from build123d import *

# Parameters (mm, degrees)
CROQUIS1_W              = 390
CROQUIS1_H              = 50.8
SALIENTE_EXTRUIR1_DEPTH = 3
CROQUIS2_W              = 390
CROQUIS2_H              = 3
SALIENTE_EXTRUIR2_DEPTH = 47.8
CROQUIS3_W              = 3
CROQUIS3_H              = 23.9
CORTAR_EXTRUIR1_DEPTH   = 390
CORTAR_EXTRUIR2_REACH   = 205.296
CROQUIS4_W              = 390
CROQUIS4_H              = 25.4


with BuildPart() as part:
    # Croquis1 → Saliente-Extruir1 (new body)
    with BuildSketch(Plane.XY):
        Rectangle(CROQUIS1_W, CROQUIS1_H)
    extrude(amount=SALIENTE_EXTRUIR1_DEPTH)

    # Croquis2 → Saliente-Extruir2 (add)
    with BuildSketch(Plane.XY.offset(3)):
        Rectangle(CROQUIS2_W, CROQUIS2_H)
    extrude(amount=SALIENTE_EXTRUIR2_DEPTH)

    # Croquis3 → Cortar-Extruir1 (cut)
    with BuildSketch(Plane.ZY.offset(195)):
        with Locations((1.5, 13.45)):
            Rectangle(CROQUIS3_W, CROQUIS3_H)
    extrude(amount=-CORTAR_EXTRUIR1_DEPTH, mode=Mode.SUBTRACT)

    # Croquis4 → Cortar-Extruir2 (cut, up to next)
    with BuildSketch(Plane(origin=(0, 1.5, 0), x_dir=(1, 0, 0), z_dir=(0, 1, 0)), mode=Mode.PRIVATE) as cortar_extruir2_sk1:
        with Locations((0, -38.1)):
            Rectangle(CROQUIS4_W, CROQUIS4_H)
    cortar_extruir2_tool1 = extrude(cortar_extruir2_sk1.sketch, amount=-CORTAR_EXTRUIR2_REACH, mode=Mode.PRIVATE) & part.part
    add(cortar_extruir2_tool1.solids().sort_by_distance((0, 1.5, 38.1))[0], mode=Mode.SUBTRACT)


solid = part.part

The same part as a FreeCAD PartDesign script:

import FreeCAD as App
import Part
import Sketcher
Q = App.Units.Quantity

doc = App.newDocument("Part")
body = doc.addObject("PartDesign::Body", "Body")

sketch1 = doc.addObject("Sketcher::SketchObject", "Sketch")
body.addObject(sketch1)
sketch1.AttachmentSupport = (doc.XY_Plane, [""])
sketch1.MapMode = "FlatFace"
sketch1.addGeometry(Part.LineSegment(App.Vector(-195, 25, 0), App.Vector(-195, -25, 0)), False)
sketch1.addGeometry(Part.LineSegment(App.Vector(-195, -25, 0), App.Vector(195, -25, 0)), False)
sketch1.addGeometry(Part.LineSegment(App.Vector(195, -25, 0), App.Vector(195, 25, 0)), False)
sketch1.addGeometry(Part.LineSegment(App.Vector(195, 25, 0), App.Vector(-195, 25, 0)), False)
sketch1.addConstraint(Sketcher.Constraint("Coincident", 0, 2, 1, 1))
sketch1.addConstraint(Sketcher.Constraint("Coincident", 1, 2, 2, 1))
sketch1.addConstraint(Sketcher.Constraint("Coincident", 2, 2, 3, 1))
sketch1.addConstraint(Sketcher.Constraint("Coincident", 3, 2, 0, 1))
sketch1.addConstraint(Sketcher.Constraint("Vertical", 0))
sketch1.addConstraint(Sketcher.Constraint("Horizontal", 1))
sketch1.addConstraint(Sketcher.Constraint("Vertical", 2))
sketch1.addConstraint(Sketcher.Constraint("Horizontal", 3))
sketch1.addConstraint(Sketcher.Constraint("Symmetric", 0, 2, 2, 2, -1, 1))
sketch1.addConstraint(Sketcher.Constraint("DistanceX", 1, 1, 1, 2, Q("390 mm")))
sketch1.addConstraint(Sketcher.Constraint("DistanceY", 0, 2, 0, 1, Q("50.8 mm")))
pad1 = doc.addObject("PartDesign::Pad", "Pad")
body.addObject(pad1)
pad1.Profile = sketch1
pad1.Length = 3

sketch2 = doc.addObject("Sketcher::SketchObject", "Sketch001")
body.addObject(sketch2)
sketch2.AttachmentSupport = (doc.XY_Plane, [""])
sketch2.MapMode = "FlatFace"
sketch2.AttachmentOffset = App.Placement(App.Vector(0, 0, 3), App.Rotation())
sketch2.addGeometry(Part.LineSegment(App.Vector(-195, 1.5, 0), App.Vector(-195, -1.5, 0)), False)
sketch2.addGeometry(Part.LineSegment(App.Vector(-195, -1.5, 0), App.Vector(195, -1.5, 0)), False)
sketch2.addGeometry(Part.LineSegment(App.Vector(195, -1.5, 0), App.Vector(195, 1.5, 0)), False)
sketch2.addGeometry(Part.LineSegment(App.Vector(195, 1.5, 0), App.Vector(-195, 1.5, 0)), False)
sketch2.addConstraint(Sketcher.Constraint("Coincident", 0, 2, 1, 1))
sketch2.addConstraint(Sketcher.Constraint("Coincident", 1, 2, 2, 1))
sketch2.addConstraint(Sketcher.Constraint("Coincident", 2, 2, 3, 1))
sketch2.addConstraint(Sketcher.Constraint("Coincident", 3, 2, 0, 1))
sketch2.addConstraint(Sketcher.Constraint("Vertical", 0))
sketch2.addConstraint(Sketcher.Constraint("Horizontal", 1))
sketch2.addConstraint(Sketcher.Constraint("Vertical", 2))
sketch2.addConstraint(Sketcher.Constraint("Horizontal", 3))
sketch2.addConstraint(Sketcher.Constraint("Symmetric", 0, 2, 2, 2, -1, 1))
sketch2.addConstraint(Sketcher.Constraint("DistanceX", 1, 1, 1, 2, Q("390 mm")))
sketch2.addConstraint(Sketcher.Constraint("DistanceY", 0, 2, 0, 1, Q("3 mm")))
pad2 = doc.addObject("PartDesign::Pad", "Pad001")
body.addObject(pad2)
pad2.Profile = sketch2
pad2.Length = 47.8

sketch3 = doc.addObject("Sketcher::SketchObject", "Sketch002")
body.addObject(sketch3)
sketch3.AttachmentSupport = (doc.YZ_Plane, [""])
sketch3.MapMode = "FlatFace"
sketch3.AttachmentOffset = App.Placement(App.Vector(0, 0, -195), App.Rotation())
sketch3.addGeometry(Part.LineSegment(App.Vector(25.4, 0, 0), App.Vector(1.5, 0, 0)), False)
sketch3.addGeometry(Part.LineSegment(App.Vector(1.5, 0, 0), App.Vector(1.5, 3, 0)), False)
sketch3.addGeometry(Part.LineSegment(App.Vector(1.5, 3, 0), App.Vector(25.4, 3, 0)), False)
sketch3.addGeometry(Part.LineSegment(App.Vector(25.4, 3, 0), App.Vector(25.4, 0, 0)), False)
sketch3.addConstraint(Sketcher.Constraint("Coincident", 0, 2, 1, 1))
sketch3.addConstraint(Sketcher.Constraint("Coincident", 1, 2, 2, 1))
sketch3.addConstraint(Sketcher.Constraint("Coincident", 2, 2, 3, 1))
sketch3.addConstraint(Sketcher.Constraint("Coincident", 3, 2, 0, 1))
sketch3.addConstraint(Sketcher.Constraint("Horizontal", 0))
sketch3.addConstraint(Sketcher.Constraint("Vertical", 1))
sketch3.addConstraint(Sketcher.Constraint("Horizontal", 2))
sketch3.addConstraint(Sketcher.Constraint("Vertical", 3))
sketch3.addConstraint(Sketcher.Constraint("PointOnObject", 0, 2, -1))
sketch3.addConstraint(Sketcher.Constraint("DistanceY", 1, 1, 1, 2, Q("3 mm")))
sketch3.addConstraint(Sketcher.Constraint("DistanceX", 0, 2, 0, 1, Q("23.9 mm")))
sketch3.addConstraint(Sketcher.Constraint("DistanceX", -1, 1, 0, 2, Q("1.5 mm")))
pocket1 = doc.addObject("PartDesign::Pocket", "Pocket")
body.addObject(pocket1)
pocket1.Profile = sketch3
pocket1.Length = 390
pocket1.Reversed = True

sketch4 = doc.addObject("Sketcher::SketchObject", "Sketch003")
body.addObject(sketch4)
sketch4.AttachmentSupport = (doc.XZ_Plane, [""])
sketch4.MapMode = "FlatFace"
sketch4.AttachmentOffset = App.Placement(App.Vector(0, 0, -1.5), App.Rotation())
sketch4.addGeometry(Part.LineSegment(App.Vector(-195, 25, 0), App.Vector(-195, 51, 0)), False)
sketch4.addGeometry(Part.LineSegment(App.Vector(-195, 51, 0), App.Vector(195, 51, 0)), False)
sketch4.addGeometry(Part.LineSegment(App.Vector(195, 51, 0), App.Vector(195, 25, 0)), False)
sketch4.addGeometry(Part.LineSegment(App.Vector(195, 25, 0), App.Vector(-195, 25, 0)), False)
sketch4.addConstraint(Sketcher.Constraint("Coincident", 0, 2, 1, 1))
sketch4.addConstraint(Sketcher.Constraint("Coincident", 1, 2, 2, 1))
sketch4.addConstraint(Sketcher.Constraint("Coincident", 2, 2, 3, 1))
sketch4.addConstraint(Sketcher.Constraint("Coincident", 3, 2, 0, 1))
sketch4.addConstraint(Sketcher.Constraint("Vertical", 0))
sketch4.addConstraint(Sketcher.Constraint("Horizontal", 1))
sketch4.addConstraint(Sketcher.Constraint("Vertical", 2))
sketch4.addConstraint(Sketcher.Constraint("Horizontal", 3))
sketch4.addConstraint(Sketcher.Constraint("DistanceX", 1, 1, 1, 2, Q("390 mm")))
sketch4.addConstraint(Sketcher.Constraint("DistanceY", 0, 1, 0, 2, Q("25.4 mm")))
sketch4.addConstraint(Sketcher.Constraint("DistanceX", 0, 2, -1, 1, Q("195 mm")))
sketch4.addConstraint(Sketcher.Constraint("DistanceY", -1, 1, 0, 2, Q("50.8 mm")))
pocket2 = doc.addObject("PartDesign::Pocket", "Pocket001")
body.addObject(pocket2)
pocket2.Profile = sketch4
pocket2.Type = "UpToFirst"
pocket2.Reversed = True

doc.recompute()
